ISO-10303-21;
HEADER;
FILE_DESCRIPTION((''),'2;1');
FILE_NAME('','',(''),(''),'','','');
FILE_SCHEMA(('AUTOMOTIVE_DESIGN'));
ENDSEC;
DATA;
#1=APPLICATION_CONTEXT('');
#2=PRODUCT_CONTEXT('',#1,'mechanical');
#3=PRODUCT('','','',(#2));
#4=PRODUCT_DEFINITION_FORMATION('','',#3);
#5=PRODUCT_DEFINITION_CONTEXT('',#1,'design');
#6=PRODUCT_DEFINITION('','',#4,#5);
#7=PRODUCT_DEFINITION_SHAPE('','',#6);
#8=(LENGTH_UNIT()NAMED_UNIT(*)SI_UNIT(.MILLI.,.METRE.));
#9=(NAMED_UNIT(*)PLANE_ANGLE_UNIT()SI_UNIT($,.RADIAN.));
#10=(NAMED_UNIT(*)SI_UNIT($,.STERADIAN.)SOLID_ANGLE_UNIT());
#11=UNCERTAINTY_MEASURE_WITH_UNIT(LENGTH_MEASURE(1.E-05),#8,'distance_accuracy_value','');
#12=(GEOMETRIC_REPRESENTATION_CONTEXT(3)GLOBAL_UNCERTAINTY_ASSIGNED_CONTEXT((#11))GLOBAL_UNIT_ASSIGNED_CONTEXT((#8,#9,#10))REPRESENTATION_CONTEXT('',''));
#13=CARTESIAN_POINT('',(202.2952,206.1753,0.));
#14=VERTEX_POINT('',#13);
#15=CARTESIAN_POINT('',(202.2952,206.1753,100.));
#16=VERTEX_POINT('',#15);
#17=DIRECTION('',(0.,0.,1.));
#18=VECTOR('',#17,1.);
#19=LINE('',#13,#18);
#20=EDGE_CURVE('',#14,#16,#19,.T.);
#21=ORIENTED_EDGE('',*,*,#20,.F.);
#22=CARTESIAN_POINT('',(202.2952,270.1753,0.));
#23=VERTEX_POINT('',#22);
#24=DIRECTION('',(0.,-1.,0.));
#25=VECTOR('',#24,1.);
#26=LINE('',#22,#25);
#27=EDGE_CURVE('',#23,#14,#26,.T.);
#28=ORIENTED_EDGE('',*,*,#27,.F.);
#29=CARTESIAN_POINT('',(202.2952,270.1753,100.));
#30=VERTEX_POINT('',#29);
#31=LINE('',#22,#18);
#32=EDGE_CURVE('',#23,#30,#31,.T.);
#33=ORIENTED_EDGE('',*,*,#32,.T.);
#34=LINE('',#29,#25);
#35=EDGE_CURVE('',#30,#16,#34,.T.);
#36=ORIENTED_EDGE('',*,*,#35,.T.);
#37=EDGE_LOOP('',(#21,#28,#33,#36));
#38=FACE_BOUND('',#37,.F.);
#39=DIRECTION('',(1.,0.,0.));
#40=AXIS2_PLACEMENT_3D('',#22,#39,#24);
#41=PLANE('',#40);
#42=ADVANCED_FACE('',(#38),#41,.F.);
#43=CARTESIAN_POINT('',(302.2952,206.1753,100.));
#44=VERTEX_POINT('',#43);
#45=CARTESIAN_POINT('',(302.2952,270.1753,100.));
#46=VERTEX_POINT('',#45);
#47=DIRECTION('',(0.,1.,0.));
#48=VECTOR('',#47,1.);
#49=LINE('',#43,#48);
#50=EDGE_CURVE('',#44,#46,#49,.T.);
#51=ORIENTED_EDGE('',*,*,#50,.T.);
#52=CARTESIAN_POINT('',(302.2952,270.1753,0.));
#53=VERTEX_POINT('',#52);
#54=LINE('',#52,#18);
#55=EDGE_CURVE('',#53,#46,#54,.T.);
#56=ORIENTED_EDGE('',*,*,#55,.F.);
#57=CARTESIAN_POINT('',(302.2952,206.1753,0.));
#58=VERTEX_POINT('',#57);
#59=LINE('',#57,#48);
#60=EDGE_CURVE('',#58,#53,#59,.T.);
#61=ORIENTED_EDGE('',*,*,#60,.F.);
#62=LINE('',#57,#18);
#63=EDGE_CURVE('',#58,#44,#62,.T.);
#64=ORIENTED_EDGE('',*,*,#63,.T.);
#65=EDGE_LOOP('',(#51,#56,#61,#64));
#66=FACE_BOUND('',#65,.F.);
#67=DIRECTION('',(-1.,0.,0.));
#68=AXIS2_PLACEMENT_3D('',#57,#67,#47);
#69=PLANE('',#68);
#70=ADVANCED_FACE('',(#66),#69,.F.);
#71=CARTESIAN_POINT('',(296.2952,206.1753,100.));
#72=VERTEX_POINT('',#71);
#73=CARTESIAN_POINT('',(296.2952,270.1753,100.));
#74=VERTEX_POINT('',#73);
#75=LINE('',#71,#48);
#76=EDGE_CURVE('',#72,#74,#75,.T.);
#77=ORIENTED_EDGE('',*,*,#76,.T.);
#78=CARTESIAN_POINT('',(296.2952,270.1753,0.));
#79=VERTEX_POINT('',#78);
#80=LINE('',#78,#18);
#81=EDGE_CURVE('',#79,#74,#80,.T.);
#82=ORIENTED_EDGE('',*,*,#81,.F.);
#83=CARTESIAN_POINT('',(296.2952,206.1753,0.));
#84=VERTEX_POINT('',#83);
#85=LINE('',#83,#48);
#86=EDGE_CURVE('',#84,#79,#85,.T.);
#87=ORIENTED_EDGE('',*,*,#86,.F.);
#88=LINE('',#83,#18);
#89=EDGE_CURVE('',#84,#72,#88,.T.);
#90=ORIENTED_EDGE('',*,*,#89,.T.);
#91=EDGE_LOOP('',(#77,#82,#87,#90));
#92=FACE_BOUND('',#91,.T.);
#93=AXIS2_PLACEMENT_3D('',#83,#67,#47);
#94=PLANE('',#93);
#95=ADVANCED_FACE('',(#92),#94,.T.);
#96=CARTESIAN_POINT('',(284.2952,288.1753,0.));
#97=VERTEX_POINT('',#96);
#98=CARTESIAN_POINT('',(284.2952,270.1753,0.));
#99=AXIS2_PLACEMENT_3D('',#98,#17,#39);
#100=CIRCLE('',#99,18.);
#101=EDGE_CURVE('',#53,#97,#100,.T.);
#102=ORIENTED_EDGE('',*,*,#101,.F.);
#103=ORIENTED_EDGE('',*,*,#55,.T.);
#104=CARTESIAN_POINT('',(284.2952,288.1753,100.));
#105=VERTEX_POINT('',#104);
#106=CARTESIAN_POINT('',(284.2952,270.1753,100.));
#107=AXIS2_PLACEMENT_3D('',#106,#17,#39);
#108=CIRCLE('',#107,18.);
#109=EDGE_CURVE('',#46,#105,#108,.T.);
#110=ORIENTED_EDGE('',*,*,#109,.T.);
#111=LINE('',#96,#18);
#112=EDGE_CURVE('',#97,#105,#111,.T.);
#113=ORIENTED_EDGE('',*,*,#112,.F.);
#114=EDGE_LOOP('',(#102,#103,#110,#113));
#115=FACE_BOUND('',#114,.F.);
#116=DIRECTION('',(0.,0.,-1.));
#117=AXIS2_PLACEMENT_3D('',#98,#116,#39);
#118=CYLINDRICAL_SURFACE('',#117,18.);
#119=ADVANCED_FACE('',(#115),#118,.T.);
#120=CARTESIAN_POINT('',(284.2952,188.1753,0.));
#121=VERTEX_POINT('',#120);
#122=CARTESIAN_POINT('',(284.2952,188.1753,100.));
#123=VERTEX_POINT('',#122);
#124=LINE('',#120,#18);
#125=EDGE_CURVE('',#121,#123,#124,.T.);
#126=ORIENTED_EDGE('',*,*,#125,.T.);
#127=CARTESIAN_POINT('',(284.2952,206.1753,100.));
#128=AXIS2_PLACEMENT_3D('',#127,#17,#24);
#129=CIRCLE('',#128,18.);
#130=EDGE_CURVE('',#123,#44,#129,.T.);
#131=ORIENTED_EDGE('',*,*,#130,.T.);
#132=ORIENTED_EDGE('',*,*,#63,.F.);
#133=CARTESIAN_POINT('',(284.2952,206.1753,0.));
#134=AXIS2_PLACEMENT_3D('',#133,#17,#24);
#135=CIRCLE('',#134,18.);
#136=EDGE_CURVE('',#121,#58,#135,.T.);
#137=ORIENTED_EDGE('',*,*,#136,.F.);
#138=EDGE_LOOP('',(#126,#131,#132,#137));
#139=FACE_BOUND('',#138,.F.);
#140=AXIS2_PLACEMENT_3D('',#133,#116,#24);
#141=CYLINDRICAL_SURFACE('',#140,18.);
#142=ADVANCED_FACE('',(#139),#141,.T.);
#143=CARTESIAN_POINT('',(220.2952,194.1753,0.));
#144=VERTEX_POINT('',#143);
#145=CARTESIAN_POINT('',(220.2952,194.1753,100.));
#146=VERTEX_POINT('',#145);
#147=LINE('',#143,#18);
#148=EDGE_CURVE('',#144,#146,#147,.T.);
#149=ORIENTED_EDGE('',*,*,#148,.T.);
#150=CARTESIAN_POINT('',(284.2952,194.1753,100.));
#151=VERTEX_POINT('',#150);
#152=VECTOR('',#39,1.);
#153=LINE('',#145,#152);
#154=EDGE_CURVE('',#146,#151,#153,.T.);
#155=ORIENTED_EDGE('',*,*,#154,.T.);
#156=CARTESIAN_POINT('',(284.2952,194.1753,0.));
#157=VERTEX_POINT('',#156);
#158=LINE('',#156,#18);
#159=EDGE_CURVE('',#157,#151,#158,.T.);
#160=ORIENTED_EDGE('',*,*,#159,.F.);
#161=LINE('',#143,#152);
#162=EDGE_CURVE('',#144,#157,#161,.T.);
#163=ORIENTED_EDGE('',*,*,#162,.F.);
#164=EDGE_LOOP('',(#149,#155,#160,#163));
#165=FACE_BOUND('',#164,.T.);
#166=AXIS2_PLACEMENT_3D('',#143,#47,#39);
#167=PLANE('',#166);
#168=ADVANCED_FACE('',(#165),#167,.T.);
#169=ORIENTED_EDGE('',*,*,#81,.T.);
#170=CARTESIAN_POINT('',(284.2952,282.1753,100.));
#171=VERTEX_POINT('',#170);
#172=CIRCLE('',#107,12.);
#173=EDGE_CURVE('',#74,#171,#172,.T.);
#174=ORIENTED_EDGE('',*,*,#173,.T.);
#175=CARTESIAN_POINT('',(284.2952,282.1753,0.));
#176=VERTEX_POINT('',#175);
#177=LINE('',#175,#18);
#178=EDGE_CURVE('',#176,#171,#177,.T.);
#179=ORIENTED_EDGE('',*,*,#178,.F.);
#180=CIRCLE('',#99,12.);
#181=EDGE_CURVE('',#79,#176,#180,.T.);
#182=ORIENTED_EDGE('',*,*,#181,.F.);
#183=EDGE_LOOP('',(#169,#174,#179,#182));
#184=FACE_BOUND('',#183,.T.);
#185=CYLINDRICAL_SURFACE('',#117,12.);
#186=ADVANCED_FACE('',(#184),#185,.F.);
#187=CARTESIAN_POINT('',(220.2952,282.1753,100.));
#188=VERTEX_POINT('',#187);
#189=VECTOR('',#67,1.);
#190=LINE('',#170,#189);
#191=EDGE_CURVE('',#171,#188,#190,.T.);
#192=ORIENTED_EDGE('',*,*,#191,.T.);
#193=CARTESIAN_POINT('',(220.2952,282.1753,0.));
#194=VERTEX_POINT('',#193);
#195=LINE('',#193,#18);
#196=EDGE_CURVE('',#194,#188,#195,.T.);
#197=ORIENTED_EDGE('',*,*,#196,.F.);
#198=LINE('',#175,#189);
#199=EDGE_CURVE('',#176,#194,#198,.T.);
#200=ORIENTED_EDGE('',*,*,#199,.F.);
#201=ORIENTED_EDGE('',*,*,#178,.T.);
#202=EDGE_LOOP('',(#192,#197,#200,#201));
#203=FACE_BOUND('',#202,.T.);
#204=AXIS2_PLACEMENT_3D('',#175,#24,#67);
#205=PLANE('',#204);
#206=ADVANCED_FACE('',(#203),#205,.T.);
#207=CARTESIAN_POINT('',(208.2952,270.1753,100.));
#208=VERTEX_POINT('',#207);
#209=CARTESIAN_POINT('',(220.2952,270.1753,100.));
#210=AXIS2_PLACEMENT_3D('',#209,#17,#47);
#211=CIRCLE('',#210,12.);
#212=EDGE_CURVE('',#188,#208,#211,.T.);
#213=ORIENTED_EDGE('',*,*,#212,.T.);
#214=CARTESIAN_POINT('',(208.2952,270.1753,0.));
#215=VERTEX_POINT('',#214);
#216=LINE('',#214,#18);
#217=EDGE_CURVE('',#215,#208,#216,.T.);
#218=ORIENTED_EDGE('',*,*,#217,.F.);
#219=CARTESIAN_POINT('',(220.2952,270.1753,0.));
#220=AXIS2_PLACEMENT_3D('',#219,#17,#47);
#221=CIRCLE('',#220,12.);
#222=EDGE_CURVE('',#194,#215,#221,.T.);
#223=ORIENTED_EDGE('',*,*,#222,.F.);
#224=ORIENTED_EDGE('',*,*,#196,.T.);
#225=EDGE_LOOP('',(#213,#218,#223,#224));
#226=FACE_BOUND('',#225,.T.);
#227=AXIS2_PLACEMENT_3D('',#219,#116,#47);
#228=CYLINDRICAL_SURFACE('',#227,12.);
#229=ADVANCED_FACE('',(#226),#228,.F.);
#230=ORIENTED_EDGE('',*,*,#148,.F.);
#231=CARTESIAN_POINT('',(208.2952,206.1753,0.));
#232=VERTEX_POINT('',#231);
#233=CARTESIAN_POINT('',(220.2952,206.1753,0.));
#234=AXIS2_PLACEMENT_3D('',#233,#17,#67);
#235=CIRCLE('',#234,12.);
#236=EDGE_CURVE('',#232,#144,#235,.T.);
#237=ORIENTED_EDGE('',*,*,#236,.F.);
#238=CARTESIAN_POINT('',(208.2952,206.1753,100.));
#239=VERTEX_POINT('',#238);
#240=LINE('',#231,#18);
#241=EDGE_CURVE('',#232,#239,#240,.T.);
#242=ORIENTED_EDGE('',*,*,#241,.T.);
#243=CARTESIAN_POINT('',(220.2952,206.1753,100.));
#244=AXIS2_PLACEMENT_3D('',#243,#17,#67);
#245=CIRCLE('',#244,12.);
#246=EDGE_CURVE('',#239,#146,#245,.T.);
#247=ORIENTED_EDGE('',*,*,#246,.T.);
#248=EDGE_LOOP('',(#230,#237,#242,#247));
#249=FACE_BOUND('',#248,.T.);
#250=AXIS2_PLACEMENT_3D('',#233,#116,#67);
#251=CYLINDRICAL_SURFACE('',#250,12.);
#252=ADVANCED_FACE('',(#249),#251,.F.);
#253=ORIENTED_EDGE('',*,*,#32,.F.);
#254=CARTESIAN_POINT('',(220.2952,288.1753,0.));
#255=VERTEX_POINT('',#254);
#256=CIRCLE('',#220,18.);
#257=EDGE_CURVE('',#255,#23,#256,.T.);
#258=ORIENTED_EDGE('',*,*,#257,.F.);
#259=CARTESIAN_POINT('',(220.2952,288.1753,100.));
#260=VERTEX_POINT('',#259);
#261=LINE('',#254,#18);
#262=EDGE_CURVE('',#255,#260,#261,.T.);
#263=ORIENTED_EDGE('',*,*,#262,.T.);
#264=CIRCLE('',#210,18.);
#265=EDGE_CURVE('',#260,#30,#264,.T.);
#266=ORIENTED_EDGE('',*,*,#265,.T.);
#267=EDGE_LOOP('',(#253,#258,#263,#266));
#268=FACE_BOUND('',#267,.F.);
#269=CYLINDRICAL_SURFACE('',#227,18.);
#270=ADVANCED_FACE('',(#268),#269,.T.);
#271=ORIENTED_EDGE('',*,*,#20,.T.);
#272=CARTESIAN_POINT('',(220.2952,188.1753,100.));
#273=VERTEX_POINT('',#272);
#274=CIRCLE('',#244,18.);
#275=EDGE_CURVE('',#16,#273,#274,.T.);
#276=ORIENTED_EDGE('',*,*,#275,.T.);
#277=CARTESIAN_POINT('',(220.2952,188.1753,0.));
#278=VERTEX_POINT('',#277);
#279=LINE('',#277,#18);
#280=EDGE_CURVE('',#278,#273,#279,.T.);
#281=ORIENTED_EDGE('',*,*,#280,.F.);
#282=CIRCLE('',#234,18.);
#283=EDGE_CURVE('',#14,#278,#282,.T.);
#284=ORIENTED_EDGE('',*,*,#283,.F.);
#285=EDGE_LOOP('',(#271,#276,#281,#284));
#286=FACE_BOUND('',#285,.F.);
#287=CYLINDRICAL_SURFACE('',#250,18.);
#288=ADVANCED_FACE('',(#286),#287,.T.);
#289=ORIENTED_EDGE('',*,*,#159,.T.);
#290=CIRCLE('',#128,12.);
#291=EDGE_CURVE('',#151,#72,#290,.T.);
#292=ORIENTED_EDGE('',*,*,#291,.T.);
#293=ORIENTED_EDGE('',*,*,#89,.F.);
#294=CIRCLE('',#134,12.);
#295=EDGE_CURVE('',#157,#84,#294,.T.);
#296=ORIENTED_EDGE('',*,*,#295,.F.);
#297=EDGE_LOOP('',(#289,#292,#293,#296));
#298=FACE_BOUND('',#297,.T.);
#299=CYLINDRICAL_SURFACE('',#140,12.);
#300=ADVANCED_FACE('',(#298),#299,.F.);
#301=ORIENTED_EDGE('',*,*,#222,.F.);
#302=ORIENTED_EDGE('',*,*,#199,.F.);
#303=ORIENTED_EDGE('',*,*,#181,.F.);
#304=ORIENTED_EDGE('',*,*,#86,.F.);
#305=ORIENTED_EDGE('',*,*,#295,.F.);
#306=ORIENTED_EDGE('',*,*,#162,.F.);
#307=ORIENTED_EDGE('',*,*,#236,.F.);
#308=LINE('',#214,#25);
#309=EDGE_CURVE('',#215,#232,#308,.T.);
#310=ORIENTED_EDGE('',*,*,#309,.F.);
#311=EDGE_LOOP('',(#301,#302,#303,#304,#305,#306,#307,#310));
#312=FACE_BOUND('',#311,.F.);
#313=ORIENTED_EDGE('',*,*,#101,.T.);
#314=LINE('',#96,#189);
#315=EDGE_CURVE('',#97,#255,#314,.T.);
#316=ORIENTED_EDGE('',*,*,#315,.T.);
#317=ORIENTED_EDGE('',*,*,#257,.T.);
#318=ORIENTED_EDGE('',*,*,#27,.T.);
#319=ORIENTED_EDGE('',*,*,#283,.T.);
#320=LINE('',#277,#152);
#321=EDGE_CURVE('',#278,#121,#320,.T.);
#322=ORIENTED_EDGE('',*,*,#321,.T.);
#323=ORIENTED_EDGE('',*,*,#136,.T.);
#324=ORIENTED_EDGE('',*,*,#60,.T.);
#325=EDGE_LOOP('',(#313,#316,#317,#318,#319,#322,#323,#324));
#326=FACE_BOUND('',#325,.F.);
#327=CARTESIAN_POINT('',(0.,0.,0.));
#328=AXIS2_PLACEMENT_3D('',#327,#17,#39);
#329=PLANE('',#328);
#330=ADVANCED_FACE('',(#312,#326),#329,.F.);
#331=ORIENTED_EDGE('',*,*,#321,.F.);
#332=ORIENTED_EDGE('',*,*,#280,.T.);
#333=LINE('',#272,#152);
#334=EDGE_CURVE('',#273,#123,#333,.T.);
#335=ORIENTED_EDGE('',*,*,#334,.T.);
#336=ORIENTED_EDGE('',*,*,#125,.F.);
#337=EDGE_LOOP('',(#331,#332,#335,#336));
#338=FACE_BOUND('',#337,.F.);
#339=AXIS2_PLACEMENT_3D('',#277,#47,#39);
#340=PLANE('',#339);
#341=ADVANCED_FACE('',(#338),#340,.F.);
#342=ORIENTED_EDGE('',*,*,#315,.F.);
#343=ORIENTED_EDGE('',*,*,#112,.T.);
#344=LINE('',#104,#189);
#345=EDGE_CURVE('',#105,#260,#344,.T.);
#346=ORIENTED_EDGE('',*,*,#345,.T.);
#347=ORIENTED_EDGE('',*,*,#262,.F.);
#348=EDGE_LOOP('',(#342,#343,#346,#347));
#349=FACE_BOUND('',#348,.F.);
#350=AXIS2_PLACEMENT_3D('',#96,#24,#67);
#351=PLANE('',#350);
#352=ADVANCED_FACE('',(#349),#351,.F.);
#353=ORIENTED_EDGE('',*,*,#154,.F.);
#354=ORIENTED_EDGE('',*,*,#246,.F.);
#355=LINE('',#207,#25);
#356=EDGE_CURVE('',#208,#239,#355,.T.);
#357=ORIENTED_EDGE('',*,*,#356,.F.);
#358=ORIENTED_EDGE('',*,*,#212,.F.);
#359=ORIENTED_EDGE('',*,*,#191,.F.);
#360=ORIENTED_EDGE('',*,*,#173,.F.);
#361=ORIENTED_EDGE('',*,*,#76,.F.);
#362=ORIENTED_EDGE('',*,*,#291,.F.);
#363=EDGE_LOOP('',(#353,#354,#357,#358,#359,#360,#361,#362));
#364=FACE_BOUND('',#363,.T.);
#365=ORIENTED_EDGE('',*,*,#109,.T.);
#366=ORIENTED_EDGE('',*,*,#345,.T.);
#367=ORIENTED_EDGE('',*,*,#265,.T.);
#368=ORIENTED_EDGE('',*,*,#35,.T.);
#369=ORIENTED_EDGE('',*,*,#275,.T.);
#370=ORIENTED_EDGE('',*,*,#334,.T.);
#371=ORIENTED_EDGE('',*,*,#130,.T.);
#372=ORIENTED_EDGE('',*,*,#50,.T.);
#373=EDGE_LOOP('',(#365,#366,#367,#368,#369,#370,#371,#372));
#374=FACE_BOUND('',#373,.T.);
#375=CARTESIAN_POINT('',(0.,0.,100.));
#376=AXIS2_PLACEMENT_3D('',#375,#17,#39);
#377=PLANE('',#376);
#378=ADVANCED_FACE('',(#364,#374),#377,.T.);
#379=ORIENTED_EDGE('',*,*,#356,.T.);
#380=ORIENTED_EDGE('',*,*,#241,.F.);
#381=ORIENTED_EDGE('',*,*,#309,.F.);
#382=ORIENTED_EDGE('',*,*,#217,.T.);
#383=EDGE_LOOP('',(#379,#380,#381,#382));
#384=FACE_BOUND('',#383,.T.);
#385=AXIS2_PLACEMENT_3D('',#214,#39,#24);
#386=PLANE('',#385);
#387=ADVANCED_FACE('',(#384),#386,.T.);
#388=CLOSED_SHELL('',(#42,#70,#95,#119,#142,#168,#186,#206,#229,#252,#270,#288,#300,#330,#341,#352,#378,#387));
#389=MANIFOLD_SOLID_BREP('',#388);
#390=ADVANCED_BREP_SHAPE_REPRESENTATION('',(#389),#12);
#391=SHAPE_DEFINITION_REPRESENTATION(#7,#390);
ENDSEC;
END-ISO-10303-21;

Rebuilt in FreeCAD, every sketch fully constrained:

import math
import FreeCAD as App
import Part
import Sketcher
from FreeCAD import Vector

doc = App.newDocument("Part")
body = doc.addObject("PartDesign::Body", "Body")

sketch1 = body.newObject("Sketcher::SketchObject", "Sketch")
sketch1.AttachmentSupport = (doc.getObject("XY_Plane"), [""])
sketch1.MapMode = "FlatFace"
sketch1.addGeometry(Part.ArcOfCircle(Part.Circle(Vector(220, 206, 0), Vector(0, 0, 1), 18), math.radians(180), math.radians(270)), False)
sketch1.addGeometry(Part.LineSegment(Vector(220, 188, 0), Vector(284, 188, 0)), False)
sketch1.addGeometry(Part.ArcOfCircle(Part.Circle(Vector(284, 206, 0), Vector(0, 0, 1), 18), math.radians(-90), math.radians(0)), False)
sketch1.addGeometry(Part.LineSegment(Vector(302, 206, 0), Vector(302, 270, 0)), False)
sketch1.addGeometry(Part.ArcOfCircle(Part.Circle(Vector(284, 270, 0), Vector(0, 0, 1), 18), math.radians(0), math.radians(90)), False)
sketch1.addGeometry(Part.LineSegment(Vector(284, 288, 0), Vector(220, 288, 0)), False)
sketch1.addGeometry(Part.ArcOfCircle(Part.Circle(Vector(220, 270, 0), Vector(0, 0, 1), 18), math.radians(90), math.radians(180)), False)
sketch1.addGeometry(Part.LineSegment(Vector(202, 270, 0), Vector(202, 206, 0)), False)
sketch1.addGeometry(Part.LineSegment(Vector(284, 194, 0), Vector(220, 194, 0)), False)
sketch1.addGeometry(Part.ArcOfCircle(Part.Circle(Vector(220, 206, 0), Vector(0, 0, 1), 12), math.radians(180), math.radians(270)), False)
sketch1.addGeometry(Part.LineSegment(Vector(208, 206, 0), Vector(208, 270, 0)), False)
sketch1.addGeometry(Part.ArcOfCircle(Part.Circle(Vector(220, 270, 0), Vector(0, 0, 1), 12), math.radians(90), math.radians(180)), False)
sketch1.addGeometry(Part.LineSegment(Vector(220, 282, 0), Vector(284, 282, 0)), False)
sketch1.addGeometry(Part.ArcOfCircle(Part.Circle(Vector(284, 270, 0), Vector(0, 0, 1), 12), math.radians(0), math.radians(90)), False)
sketch1.addGeometry(Part.LineSegment(Vector(296, 270, 0), Vector(296, 206, 0)), False)
sketch1.addGeometry(Part.ArcOfCircle(Part.Circle(Vector(284, 206, 0), Vector(0, 0, 1), 12), math.radians(-90), math.radians(0)), False)
sketch1.addConstraint(Sketcher.Constraint("Tangent", 0, 2, 1, 1))
sketch1.addConstraint(Sketcher.Constraint("Tangent", 1, 2, 2, 1))
sketch1.addConstraint(Sketcher.Constraint("Tangent", 2, 2, 3, 1))
sketch1.addConstraint(Sketcher.Constraint("Tangent", 3, 2, 4, 1))
sketch1.addConstraint(Sketcher.Constraint("Tangent", 4, 2, 5, 1))
sketch1.addConstraint(Sketcher.Constraint("Tangent", 5, 2, 6, 1))
sketch1.addConstraint(Sketcher.Constraint("Tangent", 6, 2, 7, 1))
sketch1.addConstraint(Sketcher.Constraint("Tangent", 7, 2, 0, 1))
sketch1.addConstraint(Sketcher.Constraint("Tangent", 8, 2, 9, 2))
sketch1.addConstraint(Sketcher.Constraint("Tangent", 9, 1, 10, 1))
sketch1.addConstraint(Sketcher.Constraint("Tangent", 10, 2, 11, 2))
sketch1.addConstraint(Sketcher.Constraint("Tangent", 11, 1, 12, 1))
sketch1.addConstraint(Sketcher.Constraint("Tangent", 12, 2, 13, 2))
sketch1.addConstraint(Sketcher.Constraint("Tangent", 13, 1, 14, 1))
sketch1.addConstraint(Sketcher.Constraint("Tangent", 14, 2, 15, 2))
sketch1.addConstraint(Sketcher.Constraint("Tangent", 15, 1, 8, 1))
sketch1.addConstraint(Sketcher.Constraint("Horizontal", 1))
sketch1.addConstraint(Sketcher.Constraint("Vertical", 3))
sketch1.addConstraint(Sketcher.Constraint("Horizontal", 5))
sketch1.addConstraint(Sketcher.Constraint("Vertical", 7))
sketch1.addConstraint(Sketcher.Constraint("Horizontal", 8))
sketch1.addConstraint(Sketcher.Constraint("Vertical", 10))
sketch1.addConstraint(Sketcher.Constraint("Horizontal", 12))
sketch1.addConstraint(Sketcher.Constraint("Vertical", 14))
sketch1.addConstraint(Sketcher.Constraint("Coincident", 9, 3, 0, 3))
sketch1.addConstraint(Sketcher.Constraint("Coincident", 11, 3, 6, 3))
sketch1.addConstraint(Sketcher.Constraint("Coincident", 13, 3, 4, 3))
sketch1.addConstraint(Sketcher.Constraint("Equal", 0, 2))
sketch1.addConstraint(Sketcher.Constraint("Equal", 2, 4))
sketch1.addConstraint(Sketcher.Constraint("Equal", 4, 6))
sketch1.addConstraint(Sketcher.Constraint("Equal", 13, 15))
sketch1.addConstraint(Sketcher.Constraint("Equal", 12, 3))
sketch1.addConstraint(Sketcher.Constraint("Radius", 0, 18.0))
sketch1.addConstraint(Sketcher.Constraint("Radius", 9, 12.0))
sketch1.addConstraint(Sketcher.Constraint("DistanceX", 1, 1, 1, 2, 64.0))
sketch1.addConstraint(Sketcher.Constraint("DistanceX", -1, 1, 0, 3, 220.2952))
sketch1.addConstraint(Sketcher.Constraint("DistanceY", -1, 1, 0, 3, 206.1753))
pad1 = body.newObject("PartDesign::Pad", "Pad")
pad1.Profile = sketch1
pad1.Length = 100

doc.recompute()
